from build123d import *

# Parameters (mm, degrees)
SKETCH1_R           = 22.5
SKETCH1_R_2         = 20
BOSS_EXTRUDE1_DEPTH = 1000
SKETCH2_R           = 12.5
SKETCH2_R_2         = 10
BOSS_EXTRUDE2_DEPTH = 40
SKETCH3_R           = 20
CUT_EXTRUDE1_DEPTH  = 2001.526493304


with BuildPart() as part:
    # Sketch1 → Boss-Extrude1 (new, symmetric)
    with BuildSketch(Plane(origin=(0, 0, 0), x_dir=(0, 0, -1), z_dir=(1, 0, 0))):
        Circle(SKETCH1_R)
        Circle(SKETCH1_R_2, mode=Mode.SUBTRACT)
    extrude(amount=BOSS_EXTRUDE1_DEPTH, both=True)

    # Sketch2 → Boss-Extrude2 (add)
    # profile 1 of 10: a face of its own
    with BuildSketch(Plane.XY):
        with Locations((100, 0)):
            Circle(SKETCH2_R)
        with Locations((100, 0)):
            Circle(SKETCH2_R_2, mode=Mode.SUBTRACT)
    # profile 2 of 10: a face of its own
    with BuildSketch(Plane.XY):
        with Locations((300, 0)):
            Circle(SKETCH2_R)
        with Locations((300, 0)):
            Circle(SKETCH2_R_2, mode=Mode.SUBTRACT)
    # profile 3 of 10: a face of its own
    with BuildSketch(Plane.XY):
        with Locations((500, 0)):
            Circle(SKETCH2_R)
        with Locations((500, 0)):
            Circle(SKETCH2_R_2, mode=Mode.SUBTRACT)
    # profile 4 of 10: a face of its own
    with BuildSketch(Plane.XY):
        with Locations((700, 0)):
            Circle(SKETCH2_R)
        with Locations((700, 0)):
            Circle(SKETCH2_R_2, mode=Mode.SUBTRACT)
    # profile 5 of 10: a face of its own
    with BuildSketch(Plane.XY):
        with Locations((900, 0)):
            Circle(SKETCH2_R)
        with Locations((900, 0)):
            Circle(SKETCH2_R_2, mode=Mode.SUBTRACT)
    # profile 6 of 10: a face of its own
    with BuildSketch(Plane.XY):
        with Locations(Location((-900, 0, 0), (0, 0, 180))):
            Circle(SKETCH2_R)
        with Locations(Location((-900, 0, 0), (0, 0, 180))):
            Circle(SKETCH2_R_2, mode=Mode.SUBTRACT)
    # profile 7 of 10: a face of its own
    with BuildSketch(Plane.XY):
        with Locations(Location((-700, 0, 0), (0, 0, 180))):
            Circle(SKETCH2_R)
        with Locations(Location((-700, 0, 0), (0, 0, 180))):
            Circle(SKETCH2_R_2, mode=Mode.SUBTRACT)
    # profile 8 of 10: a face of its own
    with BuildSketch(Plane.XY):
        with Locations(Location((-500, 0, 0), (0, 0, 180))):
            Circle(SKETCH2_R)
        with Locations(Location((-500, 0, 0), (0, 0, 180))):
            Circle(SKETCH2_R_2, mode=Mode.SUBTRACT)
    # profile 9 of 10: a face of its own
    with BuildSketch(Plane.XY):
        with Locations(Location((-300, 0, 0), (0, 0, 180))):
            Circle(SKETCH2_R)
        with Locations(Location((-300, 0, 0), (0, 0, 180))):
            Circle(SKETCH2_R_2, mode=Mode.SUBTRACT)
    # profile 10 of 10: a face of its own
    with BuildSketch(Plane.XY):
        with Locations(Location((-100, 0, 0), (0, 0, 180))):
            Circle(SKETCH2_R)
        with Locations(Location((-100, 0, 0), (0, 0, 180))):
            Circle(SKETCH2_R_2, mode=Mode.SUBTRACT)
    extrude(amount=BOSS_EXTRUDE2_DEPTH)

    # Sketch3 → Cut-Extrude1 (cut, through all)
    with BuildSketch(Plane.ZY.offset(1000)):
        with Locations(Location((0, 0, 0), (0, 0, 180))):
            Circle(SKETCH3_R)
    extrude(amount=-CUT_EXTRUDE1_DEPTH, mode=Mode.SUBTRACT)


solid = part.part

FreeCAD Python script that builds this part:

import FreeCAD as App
import Part
import Sketcher

doc = App.newDocument("Part")
params = doc.addObject("Spreadsheet::Sheet", "Params")
for row, (alias, value) in enumerate([
    ("sketch1_diameter", "45 mm"),
    ("sketch1_diameter2", "40 mm"),
    ("pad1_length", "2000 mm"),
    ("sketch2_diameter", "25 mm"),
    ("sketch2_diameter2", "20 mm"),
    ("pad2_length", "40 mm"),
    ("sketch3_diameter", "40 mm"),
], start=1):
    params.set(f"A{row}", alias)
    params.set(f"B{row}", "=" + value)
    params.setAlias(f"B{row}", alias)

body = doc.addObject("PartDesign::Body", "Body")

sketch1 = body.newObject("Sketcher::SketchObject", "Sketch")
sketch1.AttachmentSupport = (doc.getObject("YZ_Plane"), [""])
sketch1.MapMode = "FlatFace"
sketch1.addGeometry([
    Part.Circle(App.Vector(0, 0, 0), App.Vector(0, 0, 1), 22.5),
    Part.Circle(App.Vector(0, 0, 0), App.Vector(0, 0, 1), 20),
], False)
sketch1.addConstraint([
    Sketcher.Constraint("Coincident", 0, 3, -1, 1),
    Sketcher.Constraint("Coincident", 1, 3, -1, 1),
    Sketcher.Constraint("Diameter", 0, 45.0),
    Sketcher.Constraint("Diameter", 1, 40.0),
])
sketch1.setExpression("Constraints[2]", "Params.sketch1_diameter")
sketch1.setExpression("Constraints[3]", "Params.sketch1_diameter2")
pad1 = body.newObject("PartDesign::Pad", "Pad")
pad1.Profile = sketch1
pad1.setExpression("Length", "Params.pad1_length")
pad1.Midplane = True

sketch2 = body.newObject("Sketcher::SketchObject", "Sketch001")
sketch2.AttachmentSupport = (doc.getObject("XY_Plane"), [""])
sketch2.MapMode = "FlatFace"
sketch2.addGeometry([
    Part.Circle(App.Vector(100, 0, 0), App.Vector(0, 0, 1), 12.5),
    Part.Circle(App.Vector(100, 0, 0), App.Vector(0, 0, 1), 10),
    Part.Circle(App.Vector(300, 0, 0), App.Vector(0, 0, 1), 12.5),
    Part.Circle(App.Vector(300, 0, 0), App.Vector(0, 0, 1), 10),
    Part.Circle(App.Vector(500, 0, 0), App.Vector(0, 0, 1), 12.5),
    Part.Circle(App.Vector(500, 0, 0), App.Vector(0, 0, 1), 10),
    Part.Circle(App.Vector(700, 0, 0), App.Vector(0, 0, 1), 12.5),
    Part.Circle(App.Vector(700, 0, 0), App.Vector(0, 0, 1), 10),
    Part.Circle(App.Vector(900, 0, 0), App.Vector(0, 0, 1), 12.5),
    Part.Circle(App.Vector(900, 0, 0), App.Vector(0, 0, 1), 10),
    Part.Circle(App.Vector(-900, 0, 0), App.Vector(0, 0, 1), 12.5),
    Part.Circle(App.Vector(-900, 0, 0), App.Vector(0, 0, 1), 10),
    Part.Circle(App.Vector(-700, 0, 0), App.Vector(0, 0, 1), 12.5),
    Part.Circle(App.Vector(-700, 0, 0), App.Vector(0, 0, 1), 10),
    Part.Circle(App.Vector(-500, 0, 0), App.Vector(0, 0, 1), 12.5),
    Part.Circle(App.Vector(-500, 0, 0), App.Vector(0, 0, 1), 10),
    Part.Circle(App.Vector(-300, 0, 0), App.Vector(0, 0, 1), 12.5),
    Part.Circle(App.Vector(-300, 0, 0), App.Vector(0, 0, 1), 10),
    Part.Circle(App.Vector(-100, 0, 0), App.Vector(0, 0, 1), 12.5),
    Part.Circle(App.Vector(-100, 0, 0), App.Vector(0, 0, 1), 10),
], False)
sketch2.addConstraint([
    Sketcher.Constraint("Coincident", 1, 3, 0, 3),
    Sketcher.Constraint("Coincident", 3, 3, 2, 3),
    Sketcher.Constraint("Coincident", 5, 3, 4, 3),
    Sketcher.Constraint("Coincident", 7, 3, 6, 3),
    Sketcher.Constraint("Coincident", 9, 3, 8, 3),
    Sketcher.Constraint("Coincident", 11, 3, 10, 3),
    Sketcher.Constraint("Coincident", 13, 3, 12, 3),
    Sketcher.Constraint("Coincident", 15, 3, 14, 3),
    Sketcher.Constraint("Coincident", 17, 3, 16, 3),
    Sketcher.Constraint("Coincident", 19, 3, 18, 3),
    Sketcher.Constraint("Equal", 0, 2),
    Sketcher.Constraint("Equal", 1, 3),
    Sketcher.Constraint("Equal", 2, 4),
    Sketcher.Constraint("Equal", 3, 5),
    Sketcher.Constraint("Equal", 4, 6),
    Sketcher.Constraint("Equal", 5, 7),
    Sketcher.Constraint("Equal", 6, 8),
    Sketcher.Constraint("Equal", 7, 9),
    Sketcher.Constraint("Equal", 8, 10),
    Sketcher.Constraint("Equal", 9, 11),
    Sketcher.Constraint("Equal", 10, 12),
    Sketcher.Constraint("Equal", 11, 13),
    Sketcher.Constraint("Equal", 12, 14),
    Sketcher.Constraint("Equal", 13, 15),
    Sketcher.Constraint("Equal", 14, 16),
    Sketcher.Constraint("Equal", 15, 17),
    Sketcher.Constraint("Equal", 16, 18),
    Sketcher.Constraint("Equal", 17, 19),
    Sketcher.Constraint("Symmetric", 8, 3, 10, 3, -1, 1),
    Sketcher.Constraint("Symmetric", 6, 3, 12, 3, -1, 1),
    Sketcher.Constraint("Symmetric", 4, 3, 14, 3, -1, 1),
    Sketcher.Constraint("Symmetric", 2, 3, 16, 3, -1, 1),
    Sketcher.Constraint("Symmetric", 0, 3, 18, 3, -1, 1),
    Sketcher.Constraint("PointOnObject", 0, 3, -1),
    Sketcher.Constraint("PointOnObject", 2, 3, -1),
    Sketcher.Constraint("PointOnObject", 4, 3, -1),
    Sketcher.Constraint("PointOnObject", 6, 3, -1),
    Sketcher.Constraint("PointOnObject", 8, 3, -1),
    Sketcher.Constraint("Diameter", 0, 25.0),
    Sketcher.Constraint("Diameter", 1, 20.0),
    Sketcher.Constraint("DistanceX", -1, 1, 0, 3, 100.0),
    Sketcher.Constraint("DistanceX", -1, 1, 2, 3, 300.0),
    Sketcher.Constraint("DistanceX", -1, 1, 4, 3, 500.0),
    Sketcher.Constraint("DistanceX", -1, 1, 6, 3, 700.0),
    Sketcher.Constraint("DistanceX", -1, 1, 8, 3, 900.0),
])
sketch2.setExpression("Constraints[38]", "Params.sketch2_diameter")
sketch2.setExpression("Constraints[39]", "Params.sketch2_diameter2")
pad2 = body.newObject("PartDesign::Pad", "Pad001")
pad2.Profile = sketch2
pad2.setExpression("Length", "Params.pad2_length")

sketch3 = body.newObject("Sketcher::SketchObject", "Sketch002")
sketch3.AttachmentSupport = (doc.getObject("YZ_Plane"), [""])
sketch3.MapMode = "FlatFace"
sketch3.AttachmentOffset = App.Placement(App.Vector(0, 0, -1000), App.Rotation())
sketch3.addGeometry(Part.Circle(App.Vector(0, 0, 0), App.Vector(0, 0, 1), 20), False)
sketch3.addConstraint([
    Sketcher.Constraint("Coincident", 0, 3, -1, 1),
    Sketcher.Constraint("Diameter", 0, 40.0),
])
sketch3.setExpression("Constraints[1]", "Params.sketch3_diameter")
pocket1 = body.newObject("PartDesign::Pocket", "Pocket")
pocket1.Profile = sketch3
pocket1.Type = "ThroughAll"
pocket1.Reversed = True

doc.recompute()
